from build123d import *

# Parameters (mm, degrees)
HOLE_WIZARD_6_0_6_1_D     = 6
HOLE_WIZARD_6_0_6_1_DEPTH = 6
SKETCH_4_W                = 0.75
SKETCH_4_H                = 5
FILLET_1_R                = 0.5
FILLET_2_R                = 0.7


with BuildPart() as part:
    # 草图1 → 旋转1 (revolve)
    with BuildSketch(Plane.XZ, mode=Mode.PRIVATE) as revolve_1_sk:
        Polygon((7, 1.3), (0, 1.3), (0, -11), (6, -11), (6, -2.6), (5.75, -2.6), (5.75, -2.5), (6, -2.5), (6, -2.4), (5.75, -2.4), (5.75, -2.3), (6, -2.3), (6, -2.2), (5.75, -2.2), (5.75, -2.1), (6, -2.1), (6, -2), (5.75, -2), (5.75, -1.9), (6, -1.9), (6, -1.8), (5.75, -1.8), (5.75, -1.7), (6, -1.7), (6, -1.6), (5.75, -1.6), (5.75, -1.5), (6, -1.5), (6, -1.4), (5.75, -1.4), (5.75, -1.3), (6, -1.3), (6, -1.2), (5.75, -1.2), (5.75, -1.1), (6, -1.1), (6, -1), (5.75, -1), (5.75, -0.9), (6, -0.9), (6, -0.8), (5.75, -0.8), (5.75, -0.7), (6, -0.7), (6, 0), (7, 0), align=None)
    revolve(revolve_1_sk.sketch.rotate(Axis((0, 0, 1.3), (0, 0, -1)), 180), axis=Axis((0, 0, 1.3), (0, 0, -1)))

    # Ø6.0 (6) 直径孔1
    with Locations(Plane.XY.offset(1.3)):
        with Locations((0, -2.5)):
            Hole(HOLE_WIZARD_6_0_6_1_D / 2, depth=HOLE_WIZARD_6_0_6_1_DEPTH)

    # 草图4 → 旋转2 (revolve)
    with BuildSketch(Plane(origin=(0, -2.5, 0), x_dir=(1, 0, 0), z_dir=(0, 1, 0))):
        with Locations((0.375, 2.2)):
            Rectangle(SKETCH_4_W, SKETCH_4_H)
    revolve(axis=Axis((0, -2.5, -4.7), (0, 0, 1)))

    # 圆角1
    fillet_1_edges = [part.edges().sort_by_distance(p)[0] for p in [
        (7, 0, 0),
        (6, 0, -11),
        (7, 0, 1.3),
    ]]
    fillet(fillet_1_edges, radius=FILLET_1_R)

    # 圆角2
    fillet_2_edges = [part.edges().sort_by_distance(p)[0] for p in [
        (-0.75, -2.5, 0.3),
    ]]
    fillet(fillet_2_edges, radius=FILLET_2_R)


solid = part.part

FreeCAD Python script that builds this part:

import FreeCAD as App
import Part
import Sketcher
from FreeCAD import Vector
Q = App.Units.Quantity


def edges_at(feature, points):
    """Names of the edges that pass closest to the given points."""
    edges = feature.Shape.Edges
    near = lambda p: min(range(len(edges)), key=lambda i: edges[i].distToShape(Part.Vertex(*p))[0])
    return sorted({f"Edge{near(p) + 1}" for p in points})

doc = App.newDocument("Part")
body = doc.addObject("PartDesign::Body", "Body")

sketch1 = body.newObject("Sketcher::SketchObject", "Sketch")
sketch1.AttachmentSupport = (doc.getObject("XZ_Plane"), [""])
sketch1.MapMode = "FlatFace"
sketch1.addGeometry(Part.LineSegment(Vector(7, 1.3, 0), Vector(0, 1.3, 0)), False)
sketch1.addGeometry(Part.LineSegment(Vector(0, 1.3, 0), Vector(0, -11, 0)), False)
sketch1.addGeometry(Part.LineSegment(Vector(0, -11, 0), Vector(6, -11, 0)), False)
sketch1.addGeometry(Part.LineSegment(Vector(6, -11, 0), Vector(6, -2.6, 0)), False)
sketch1.addGeometry(Part.LineSegment(Vector(6, -2.6, 0), Vector(5.75, -2.6, 0)), False)
sketch1.addGeometry(Part.LineSegment(Vector(5.75, -2.6, 0), Vector(5.75, -2.5, 0)), False)
sketch1.addGeometry(Part.LineSegment(Vector(5.75, -2.5, 0), Vector(6, -2.5, 0)), False)
sketch1.addGeometry(Part.LineSegment(Vector(6, -2.5, 0), Vector(6, -2.4, 0)), False)
sketch1.addGeometry(Part.LineSegment(Vector(6, -2.4, 0), Vector(5.75, -2.4, 0)), False)
sketch1.addGeometry(Part.LineSegment(Vector(5.75, -2.4, 0), Vector(5.75, -2.3, 0)), False)
sketch1.addGeometry(Part.LineSegment(Vector(5.75, -2.3, 0), Vector(6, -2.3, 0)), False)
sketch1.addGeometry(Part.LineSegment(Vector(6, -2.3, 0), Vector(6, -2.2, 0)), False)
sketch1.addGeometry(Part.LineSegment(Vector(6, -2.2, 0), Vector(5.75, -2.2, 0)), False)
sketch1.addGeometry(Part.LineSegment(Vector(5.75, -2.2, 0), Vector(5.75, -2.1, 0)), False)
sketch1.addGeometry(Part.LineSegment(Vector(5.75, -2.1, 0), Vector(6, -2.1, 0)), False)
sketch1.addGeometry(Part.LineSegment(Vector(6, -2.1, 0), Vector(6, -2, 0)), False)
sketch1.addGeometry(Part.LineSegment(Vector(6, -2, 0), Vector(5.75, -2, 0)), False)
sketch1.addGeometry(Part.LineSegment(Vector(5.75, -2, 0), Vector(5.75, -1.9, 0)), False)
sketch1.addGeometry(Part.LineSegment(Vector(5.75, -1.9, 0), Vector(6, -1.9, 0)), False)
sketch1.addGeometry(Part.LineSegment(Vector(6, -1.9, 0), Vector(6, -1.8, 0)), False)
sketch1.addGeometry(Part.LineSegment(Vector(6, -1.8, 0), Vector(5.75, -1.8, 0)), False)
sketch1.addGeometry(Part.LineSegment(Vector(5.75, -1.8, 0), Vector(5.75, -1.7, 0)), False)
sketch1.addGeometry(Part.LineSegment(Vector(5.75, -1.7, 0), Vector(6, -1.7, 0)), False)
sketch1.addGeometry(Part.LineSegment(Vector(6, -1.7, 0), Vector(6, -1.6, 0)), False)
sketch1.addGeometry(Part.LineSegment(Vector(6, -1.6, 0), Vector(5.75, -1.6, 0)), False)
sketch1.addGeometry(Part.LineSegment(Vector(5.75, -1.6, 0), Vector(5.75, -1.5, 0)), False)
sketch1.addGeometry(Part.LineSegment(Vector(5.75, -1.5, 0), Vector(6, -1.5, 0)), False)
sketch1.addGeometry(Part.LineSegment(Vector(6, -1.5, 0), Vector(6, -1.4, 0)), False)
sketch1.addGeometry(Part.LineSegment(Vector(6, -1.4, 0), Vector(5.75, -1.4, 0)), False)
sketch1.addGeometry(Part.LineSegment(Vector(5.75, -1.4, 0), Vector(5.75, -1.3, 0)), False)
sketch1.addGeometry(Part.LineSegment(Vector(5.75, -1.3, 0), Vector(6, -1.3, 0)), False)
sketch1.addGeometry(Part.LineSegment(Vector(6, -1.3, 0), Vector(6, -1.2, 0)), False)
sketch1.addGeometry(Part.LineSegment(Vector(6, -1.2, 0), Vector(5.75, -1.2, 0)), False)
sketch1.addGeometry(Part.LineSegment(Vector(5.75, -1.2, 0), Vector(5.75, -1.1, 0)), False)
sketch1.addGeometry(Part.LineSegment(Vector(5.75, -1.1, 0), Vector(6, -1.1, 0)), False)
sketch1.addGeometry(Part.LineSegment(Vector(6, -1.1, 0), Vector(6, -1, 0)), False)
sketch1.addGeometry(Part.LineSegment(Vector(6, -1, 0), Vector(5.75, -1, 0)), False)
sketch1.addGeometry(Part.LineSegment(Vector(5.75, -1, 0), Vector(5.75, -0.9, 0)), False)
sketch1.addGeometry(Part.LineSegment(Vector(5.75, -0.9, 0), Vector(6, -0.9, 0)), False)
sketch1.addGeometry(Part.LineSegment(Vector(6, -0.9, 0), Vector(6, -0.8, 0)), False)
sketch1.addGeometry(Part.LineSegment(Vector(6, -0.8, 0), Vector(5.75, -0.8, 0)), False)
sketch1.addGeometry(Part.LineSegment(Vector(5.75, -0.8, 0), Vector(5.75, -0.7, 0)), False)
sketch1.addGeometry(Part.LineSegment(Vector(5.75, -0.7, 0), Vector(6, -0.7, 0)), False)
sketch1.addGeometry(Part.LineSegment(Vector(6, -0.7, 0), Vector(6, 0, 0)), False)
sketch1.addGeometry(Part.LineSegment(Vector(6, 0, 0), Vector(7, 0, 0)), False)
sketch1.addGeometry(Part.LineSegment(Vector(7, 0, 0), Vector(7, 1.3, 0)), False)
sketch1.addConstraint(Sketcher.Constraint("Coincident", 0, 2, 1, 1))
sketch1.addConstraint(Sketcher.Constraint("Coincident", 1, 2, 2, 1))
sketch1.addConstraint(Sketcher.Constraint("Coincident", 2, 2, 3, 1))
sketch1.addConstraint(Sketcher.Constraint("Coincident", 3, 2, 4, 1))
sketch1.addConstraint(Sketcher.Constraint("Coincident", 4, 2, 5, 1))
sketch1.addConstraint(Sketcher.Constraint("Coincident", 5, 2, 6, 1))
sketch1.addConstraint(Sketcher.Constraint("Coincident", 6, 2, 7, 1))
sketch1.addConstraint(Sketcher.Constraint("Coincident", 7, 2, 8, 1))
sketch1.addConstraint(Sketcher.Constraint("Coincident", 8, 2, 9, 1))
sketch1.addConstraint(Sketcher.Constraint("Coincident", 9, 2, 10, 1))
sketch1.addConstraint(Sketcher.Constraint("Coincident", 10, 2, 11, 1))
sketch1.addConstraint(Sketcher.Constraint("Coincident", 11, 2, 12, 1))
sketch1.addConstraint(Sketcher.Constraint("Coincident", 12, 2, 13, 1))
sketch1.addConstraint(Sketcher.Constraint("Coincident", 13, 2, 14, 1))
sketch1.addConstraint(Sketcher.Constraint("Coincident", 14, 2, 15, 1))
sketch1.addConstraint(Sketcher.Constraint("Coincident", 15, 2, 16, 1))
sketch1.addConstraint(Sketcher.Constraint("Coincident", 16, 2, 17, 1))
sketch1.addConstraint(Sketcher.Constraint("Coincident", 17, 2, 18, 1))
sketch1.addConstraint(Sketcher.Constraint("Coincident", 18, 2, 19, 1))
sketch1.addConstraint(Sketcher.Constraint("Coincident", 19, 2, 20, 1))
sketch1.addConstraint(Sketcher.Constraint("Coincident", 20, 2, 21, 1))
sketch1.addConstraint(Sketcher.Constraint("Coincident", 21, 2, 22, 1))
sketch1.addConstraint(Sketcher.Constraint("Coincident", 22, 2, 23, 1))
sketch1.addConstraint(Sketcher.Constraint("Coincident", 23, 2, 24, 1))
sketch1.addConstraint(Sketcher.Constraint("Coincident", 24, 2, 25, 1))
sketch1.addConstraint(Sketcher.Constraint("Coincident", 25, 2, 26, 1))
sketch1.addConstraint(Sketcher.Constraint("Coincident", 26, 2, 27, 1))
sketch1.addConstraint(Sketcher.Constraint("Coincident", 27, 2, 28, 1))
sketch1.addConstraint(Sketcher.Constraint("Coincident", 28, 2, 29, 1))
sketch1.addConstraint(Sketcher.Constraint("Coincident", 29, 2, 30, 1))
sketch1.addConstraint(Sketcher.Constraint("Coincident", 30, 2, 31, 1))
sketch1.addConstraint(Sketcher.Constraint("Coincident", 31, 2, 32, 1))
sketch1.addConstraint(Sketcher.Constraint("Coincident", 32, 2, 33, 1))
sketch1.addConstraint(Sketcher.Constraint("Coincident", 33, 2, 34, 1))
sketch1.addConstraint(Sketcher.Constraint("Coincident", 34, 2, 35, 1))
sketch1.addConstraint(Sketcher.Constraint("Coincident", 35, 2, 36, 1))
sketch1.addConstraint(Sketcher.Constraint("Coincident", 36, 2, 37, 1))
sketch1.addConstraint(Sketcher.Constraint("Coincident", 37, 2, 38, 1))
sketch1.addConstraint(Sketcher.Constraint("Coincident", 38, 2, 39, 1))
sketch1.addConstraint(Sketcher.Constraint("Coincident", 39, 2, 40, 1))
sketch1.addConstraint(Sketcher.Constraint("Coincident", 40, 2, 41, 1))
sketch1.addConstraint(Sketcher.Constraint("Coincident", 41, 2, 42, 1))
sketch1.addConstraint(Sketcher.Constraint("Coincident", 42, 2, 43, 1))
sketch1.addConstraint(Sketcher.Constraint("Coincident", 43, 2, 44, 1))
sketch1.addConstraint(Sketcher.Constraint("Coincident", 44, 2, 45, 1))
sketch1.addConstraint(Sketcher.Constraint("Coincident", 45, 2, 0, 1))
sketch1.addConstraint(Sketcher.Constraint("Horizontal", 0))
sketch1.addConstraint(Sketcher.Constraint("Vertical", 1))
sketch1.addConstraint(Sketcher.Constraint("Horizontal", 2))
sketch1.addConstraint(Sketcher.Constraint("Vertical", 3))
sketch1.addConstraint(Sketcher.Constraint("Horizontal", 4))
sketch1.addConstraint(Sketcher.Constraint("Vertical", 5))
sketch1.addConstraint(Sketcher.Constraint("Horizontal", 6))
sketch1.addConstraint(Sketcher.Constraint("Vertical", 7))
sketch1.addConstraint(Sketcher.Constraint("Horizontal", 8))
sketch1.addConstraint(Sketcher.Constraint("Vertical", 9))
sketch1.addConstraint(Sketcher.Constraint("Horizontal", 10))
sketch1.addConstraint(Sketcher.Constraint("Vertical", 11))
sketch1.addConstraint(Sketcher.Constraint("Horizontal", 12))
sketch1.addConstraint(Sketcher.Constraint("Vertical", 13))
sketch1.addConstraint(Sketcher.Constraint("Horizontal", 14))
sketch1.addConstraint(Sketcher.Constraint("Vertical", 15))
sketch1.addConstraint(Sketcher.Constraint("Horizontal", 16))
sketch1.addConstraint(Sketcher.Constraint("Vertical", 17))
sketch1.addConstraint(Sketcher.Constraint("Horizontal", 18))
sketch1.addConstraint(Sketcher.Constraint("Vertical", 19))
sketch1.addConstraint(Sketcher.Constraint("Horizontal", 20))
sketch1.addConstraint(Sketcher.Constraint("Vertical", 21))
sketch1.addConstraint(Sketcher.Constraint("Horizontal", 22))
sketch1.addConstraint(Sketcher.Constraint("Vertical", 23))
sketch1.addConstraint(Sketcher.Constraint("Horizontal", 24))
sketch1.addConstraint(Sketcher.Constraint("Vertical", 25))
sketch1.addConstraint(Sketcher.Constraint("Horizontal", 26))
sketch1.addConstraint(Sketcher.Constraint("Vertical", 27))
sketch1.addConstraint(Sketcher.Constraint("Horizontal", 28))
sketch1.addConstraint(Sketcher.Constraint("Vertical", 29))
sketch1.addConstraint(Sketcher.Constraint("Horizontal", 30))
sketch1.addConstraint(Sketcher.Constraint("Vertical", 31))
sketch1.addConstraint(Sketcher.Constraint("Horizontal", 32))
sketch1.addConstraint(Sketcher.Constraint("Vertical", 33))
sketch1.addConstraint(Sketcher.Constraint("Horizontal", 34))
sketch1.addConstraint(Sketcher.Constraint("Vertical", 35))
sketch1.addConstraint(Sketcher.Constraint("Horizontal", 36))
sketch1.addConstraint(Sketcher.Constraint("Vertical", 37))
sketch1.addConstraint(Sketcher.Constraint("Horizontal", 38))
sketch1.addConstraint(Sketcher.Constraint("Vertical", 39))
sketch1.addConstraint(Sketcher.Constraint("Horizontal", 40))
sketch1.addConstraint(Sketcher.Constraint("Vertical", 41))
sketch1.addConstraint(Sketcher.Constraint("Horizontal", 42))
sketch1.addConstraint(Sketcher.Constraint("Vertical", 43))
sketch1.addConstraint(Sketcher.Constraint("Horizontal", 44))
sketch1.addConstraint(Sketcher.Constraint("Vertical", 45))
sketch1.addConstraint(Sketcher.Constraint("PointOnObject", 0, 2, -2))
sketch1.addConstraint(Sketcher.Constraint("PointOnObject", 43, 2, -1))
sketch1.addConstraint(Sketcher.Constraint("Vertical", 3, 2, 6, 2))
sketch1.addConstraint(Sketcher.Constraint("Vertical", 5, 2, 8, 2))
sketch1.addConstraint(Sketcher.Constraint("Vertical", 7, 2, 10, 2))
sketch1.addConstraint(Sketcher.Constraint("Vertical", 9, 2, 12, 2))
sketch1.addConstraint(Sketcher.Constraint("Vertical", 11, 2, 14, 2))
sketch1.addConstraint(Sketcher.Constraint("Vertical", 13, 2, 16, 2))
sketch1.addConstraint(Sketcher.Constraint("Vertical", 15, 2, 18, 2))
sketch1.addConstraint(Sketcher.Constraint("Vertical", 17, 2, 20, 2))
sketch1.addConstraint(Sketcher.Constraint("Vertical", 19, 2, 22, 2))
sketch1.addConstraint(Sketcher.Constraint("Vertical", 21, 2, 24, 2))
sketch1.addConstraint(Sketcher.Constraint("Vertical", 23, 2, 26, 2))
sketch1.addConstraint(Sketcher.Constraint("Vertical", 25, 2, 28, 2))
sketch1.addConstraint(Sketcher.Constraint("Vertical", 27, 2, 30, 2))
sketch1.addConstraint(Sketcher.Constraint("Vertical", 29, 2, 32, 2))
sketch1.addConstraint(Sketcher.Constraint("Vertical", 31, 2, 34, 2))
sketch1.addConstraint(Sketcher.Constraint("Vertical", 33, 2, 36, 2))
sketch1.addConstraint(Sketcher.Constraint("Vertical", 35, 2, 38, 2))
sketch1.addConstraint(Sketcher.Constraint("Vertical", 37, 2, 40, 2))
sketch1.addConstraint(Sketcher.Constraint("Vertical", 39, 2, 42, 2))
sketch1.addConstraint(Sketcher.Constraint("Equal", 5, 7))
sketch1.addConstraint(Sketcher.Constraint("Equal", 7, 9))
sketch1.addConstraint(Sketcher.Constraint("Equal", 9, 11))
sketch1.addConstraint(Sketcher.Constraint("Equal", 11, 13))
sketch1.addConstraint(Sketcher.Constraint("Equal", 13, 15))
sketch1.addConstraint(Sketcher.Constraint("Equal", 15, 17))
sketch1.addConstraint(Sketcher.Constraint("Equal", 17, 19))
sketch1.addConstraint(Sketcher.Constraint("Equal", 19, 21))
sketch1.addConstraint(Sketcher.Constraint("Equal", 21, 23))
sketch1.addConstraint(Sketcher.Constraint("Equal", 23, 25))
sketch1.addConstraint(Sketcher.Constraint("Equal", 25, 27))
sketch1.addConstraint(Sketcher.Constraint("Equal", 27, 29))
sketch1.addConstraint(Sketcher.Constraint("Equal", 29, 31))
sketch1.addConstraint(Sketcher.Constraint("Equal", 31, 33))
sketch1.addConstraint(Sketcher.Constraint("Equal", 33, 35))
sketch1.addConstraint(Sketcher.Constraint("Equal", 35, 37))
sketch1.addConstraint(Sketcher.Constraint("Equal", 37, 39))
sketch1.addConstraint(Sketcher.Constraint("Equal", 39, 41))
sketch1.addConstraint(Sketcher.Constraint("DistanceX", 0, 2, 0, 1, Q("7 mm")))
sketch1.addConstraint(Sketcher.Constraint("DistanceX", 2, 1, 2, 2, Q("6 mm")))
sketch1.addConstraint(Sketcher.Constraint("DistanceY", 1, 2, 1, 1, Q("12.3 mm")))
sketch1.addConstraint(Sketcher.Constraint("DistanceY", 3, 1, 3, 2, Q("8.4 mm")))
sketch1.addConstraint(Sketcher.Constraint("DistanceY", 5, 1, 5, 2, Q("0.1 mm")))
sketch1.addConstraint(Sketcher.Constraint("DistanceY", 43, 1, 43, 2, Q("0.7 mm")))
sketch1.addConstraint(Sketcher.Constraint("DistanceX", 4, 2, 4, 1, Q("0.25 mm")))
revolution = body.newObject("PartDesign::Revolution", "Revolution")
revolution.Profile = sketch1
revolution.ReferenceAxis = (sketch1, ["V_Axis"])
revolution.Angle = 360

sketch2 = body.newObject("Sketcher::SketchObject", "Sketch001")
sketch2.AttachmentSupport = (doc.getObject("XY_Plane"), [""])
sketch2.MapMode = "FlatFace"
sketch2.AttachmentOffset = App.Placement(Vector(0, 0, 1.3), App.Rotation())
sketch2.addGeometry(Part.Circle(Vector(0, -2.5, 0), Vector(0, 0, 1), 3), False)
sketch2.addConstraint(Sketcher.Constraint("PointOnObject", 0, 3, -2))
sketch2.addConstraint(Sketcher.Constraint("Diameter", 0, Q("6 mm")))
sketch2.addConstraint(Sketcher.Constraint("DistanceY", 0, 3, -1, 1, Q("2.5 mm")))
doc.recompute()
hole = body.newObject("PartDesign::Hole", "Hole")
hole.Profile = sketch2
hole.ThreadType = "None"
hole.Diameter = 6
hole.DepthType = "Dimension"
hole.Depth = 6
hole.DrillPoint = "Flat"

sketch3 = body.newObject("Sketcher::SketchObject", "Sketch002")
sketch3.AttachmentSupport = (doc.getObject("XZ_Plane"), [""])
sketch3.MapMode = "FlatFace"
sketch3.AttachmentOffset = App.Placement(Vector(0, 0, 2.5), App.Rotation())
sketch3.addGeometry(Part.LineSegment(Vector(0, -4.7, 0), Vector(0, 0.3, 0)), False)
sketch3.addGeometry(Part.LineSegment(Vector(0, 0.3, 0), Vector(0.8, 0.3, 0)), False)
sketch3.addGeometry(Part.LineSegment(Vector(0.8, 0.3, 0), Vector(0.8, -4.7, 0)), False)
sketch3.addGeometry(Part.LineSegment(Vector(0.8, -4.7, 0), Vector(0, -4.7, 0)), False)
sketch3.addConstraint(Sketcher.Constraint("Coincident", 0, 2, 1, 1))
sketch3.addConstraint(Sketcher.Constraint("Coincident", 1, 2, 2, 1))
sketch3.addConstraint(Sketcher.Constraint("Coincident", 2, 2, 3, 1))
sketch3.addConstraint(Sketcher.Constraint("Coincident", 3, 2, 0, 1))
sketch3.addConstraint(Sketcher.Constraint("Vertical", 0))
sketch3.addConstraint(Sketcher.Constraint("Horizontal", 1))
sketch3.addConstraint(Sketcher.Constraint("Vertical", 2))
sketch3.addConstraint(Sketcher.Constraint("Horizontal", 3))
sketch3.addConstraint(Sketcher.Constraint("PointOnObject", 0, 2, -2))
sketch3.addConstraint(Sketcher.Constraint("DistanceY", 0, 1, 0, 2, Q("5 mm")))
sketch3.addConstraint(Sketcher.Constraint("DistanceX", 1, 1, 1, 2, Q("0.75 mm")))
sketch3.addConstraint(Sketcher.Constraint("DistanceY", -1, 1, 0, 2, Q("0.3 mm")))
revolution2 = body.newObject("PartDesign::Revolution", "Revolution001")
revolution2.Profile = sketch3
revolution2.ReferenceAxis = (sketch3, ["V_Axis"])
revolution2.Angle = 360
doc.recompute()

fillet = body.newObject("PartDesign::Fillet", "Fillet")
fillet.Base = (revolution2, edges_at(revolution2, [(7, 0, 0), (6, 0, -11), (7, 0, 1.3)]))
fillet.Radius = 0.5
doc.recompute()

fillet2 = body.newObject("PartDesign::Fillet", "Fillet001")
fillet2.Base = (fillet, edges_at(fillet, [(-0.75, -2.5, 0.3)]))
fillet2.Radius = 0.7

doc.recompute()
